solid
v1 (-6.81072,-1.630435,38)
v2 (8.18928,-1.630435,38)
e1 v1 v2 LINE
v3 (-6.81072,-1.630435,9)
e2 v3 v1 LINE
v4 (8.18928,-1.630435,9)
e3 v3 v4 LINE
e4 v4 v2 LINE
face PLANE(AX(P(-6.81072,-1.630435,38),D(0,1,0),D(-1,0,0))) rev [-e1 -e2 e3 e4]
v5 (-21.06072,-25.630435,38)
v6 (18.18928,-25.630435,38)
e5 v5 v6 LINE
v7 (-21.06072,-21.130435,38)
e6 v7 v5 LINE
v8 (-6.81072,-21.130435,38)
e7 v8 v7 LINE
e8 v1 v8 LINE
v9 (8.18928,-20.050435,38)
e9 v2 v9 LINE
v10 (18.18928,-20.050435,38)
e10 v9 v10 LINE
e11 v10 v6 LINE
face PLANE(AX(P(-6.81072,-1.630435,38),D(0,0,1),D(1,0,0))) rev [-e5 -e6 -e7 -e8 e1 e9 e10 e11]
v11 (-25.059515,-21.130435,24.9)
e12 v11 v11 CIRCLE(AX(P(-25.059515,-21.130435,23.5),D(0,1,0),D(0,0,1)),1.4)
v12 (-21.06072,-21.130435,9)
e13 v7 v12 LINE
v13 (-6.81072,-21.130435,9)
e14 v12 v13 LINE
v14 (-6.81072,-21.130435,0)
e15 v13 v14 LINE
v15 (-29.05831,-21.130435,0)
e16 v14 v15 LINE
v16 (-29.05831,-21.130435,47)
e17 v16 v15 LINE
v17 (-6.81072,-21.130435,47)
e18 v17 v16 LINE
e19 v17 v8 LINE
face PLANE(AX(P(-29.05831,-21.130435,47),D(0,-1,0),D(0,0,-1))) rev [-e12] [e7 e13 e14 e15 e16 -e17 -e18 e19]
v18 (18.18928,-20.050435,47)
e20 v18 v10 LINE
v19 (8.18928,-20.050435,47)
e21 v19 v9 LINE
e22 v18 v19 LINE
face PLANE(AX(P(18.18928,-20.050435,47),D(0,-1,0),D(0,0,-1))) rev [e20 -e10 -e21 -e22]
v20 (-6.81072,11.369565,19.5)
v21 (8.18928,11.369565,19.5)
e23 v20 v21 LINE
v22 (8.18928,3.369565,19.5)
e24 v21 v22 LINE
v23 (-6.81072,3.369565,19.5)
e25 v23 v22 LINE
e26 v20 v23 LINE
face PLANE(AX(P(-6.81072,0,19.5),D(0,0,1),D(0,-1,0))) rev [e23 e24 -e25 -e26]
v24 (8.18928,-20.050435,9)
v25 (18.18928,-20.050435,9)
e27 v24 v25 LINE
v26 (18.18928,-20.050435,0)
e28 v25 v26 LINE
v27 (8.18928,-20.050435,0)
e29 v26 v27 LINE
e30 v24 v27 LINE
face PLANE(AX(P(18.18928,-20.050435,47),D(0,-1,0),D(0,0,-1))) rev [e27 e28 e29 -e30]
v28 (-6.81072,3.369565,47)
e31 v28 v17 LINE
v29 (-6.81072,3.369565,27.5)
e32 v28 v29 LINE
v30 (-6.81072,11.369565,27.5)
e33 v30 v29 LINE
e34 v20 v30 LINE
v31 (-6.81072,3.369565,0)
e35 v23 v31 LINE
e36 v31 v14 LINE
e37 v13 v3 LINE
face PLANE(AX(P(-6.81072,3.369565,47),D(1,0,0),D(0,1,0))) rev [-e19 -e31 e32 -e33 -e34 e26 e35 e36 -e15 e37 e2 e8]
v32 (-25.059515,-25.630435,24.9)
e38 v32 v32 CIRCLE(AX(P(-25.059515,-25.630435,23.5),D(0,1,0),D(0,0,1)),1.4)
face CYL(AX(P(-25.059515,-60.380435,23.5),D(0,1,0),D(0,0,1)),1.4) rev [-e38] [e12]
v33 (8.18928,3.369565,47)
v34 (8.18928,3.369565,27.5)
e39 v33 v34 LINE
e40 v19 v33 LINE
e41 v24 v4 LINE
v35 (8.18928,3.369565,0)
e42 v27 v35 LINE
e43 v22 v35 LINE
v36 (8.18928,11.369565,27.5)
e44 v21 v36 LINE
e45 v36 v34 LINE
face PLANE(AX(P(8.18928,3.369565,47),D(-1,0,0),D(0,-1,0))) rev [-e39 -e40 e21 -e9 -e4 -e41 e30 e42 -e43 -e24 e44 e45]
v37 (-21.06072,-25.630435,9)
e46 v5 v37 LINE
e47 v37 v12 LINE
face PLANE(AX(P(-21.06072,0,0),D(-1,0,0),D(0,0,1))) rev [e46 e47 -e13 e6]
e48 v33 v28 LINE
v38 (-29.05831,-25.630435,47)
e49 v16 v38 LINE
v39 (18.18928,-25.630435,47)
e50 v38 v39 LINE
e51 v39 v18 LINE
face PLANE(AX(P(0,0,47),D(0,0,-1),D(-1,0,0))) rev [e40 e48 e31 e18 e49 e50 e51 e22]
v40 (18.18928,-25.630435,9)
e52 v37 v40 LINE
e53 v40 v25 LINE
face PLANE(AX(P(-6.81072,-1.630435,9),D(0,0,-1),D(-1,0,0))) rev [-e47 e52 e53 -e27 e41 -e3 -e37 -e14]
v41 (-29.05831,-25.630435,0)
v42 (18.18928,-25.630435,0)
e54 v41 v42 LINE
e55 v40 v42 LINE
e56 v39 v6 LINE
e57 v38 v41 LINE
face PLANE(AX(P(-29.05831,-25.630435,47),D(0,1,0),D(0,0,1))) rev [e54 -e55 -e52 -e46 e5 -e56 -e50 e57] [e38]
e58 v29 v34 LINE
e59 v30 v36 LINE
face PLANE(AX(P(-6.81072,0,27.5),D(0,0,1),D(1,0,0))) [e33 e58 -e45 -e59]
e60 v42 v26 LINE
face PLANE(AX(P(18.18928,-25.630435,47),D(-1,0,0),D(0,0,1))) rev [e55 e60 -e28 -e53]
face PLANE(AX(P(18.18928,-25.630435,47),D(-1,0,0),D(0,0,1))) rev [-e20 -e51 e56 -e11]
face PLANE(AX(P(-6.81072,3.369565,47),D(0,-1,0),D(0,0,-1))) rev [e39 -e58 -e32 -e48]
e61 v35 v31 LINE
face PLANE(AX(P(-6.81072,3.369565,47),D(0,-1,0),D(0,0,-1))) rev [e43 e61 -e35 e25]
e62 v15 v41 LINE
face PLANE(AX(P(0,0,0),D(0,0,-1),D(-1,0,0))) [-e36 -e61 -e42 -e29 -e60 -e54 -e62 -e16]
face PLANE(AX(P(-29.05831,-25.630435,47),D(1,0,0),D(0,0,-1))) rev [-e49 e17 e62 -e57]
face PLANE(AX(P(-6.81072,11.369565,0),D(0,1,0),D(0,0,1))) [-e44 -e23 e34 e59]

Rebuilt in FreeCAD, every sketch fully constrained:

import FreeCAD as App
import Part
import Sketcher

V = App.Vector
Q = App.Units.Quantity

doc = App.newDocument("Part")
body = doc.addObject("PartDesign::Body", "Body")

# Sketch on XY plane
sketch1 = body.newObject("Sketcher::SketchObject", "Sketch")
sketch1.AttachmentSupport = (doc.getObject("XY_Plane"), [""])
sketch1.MapMode = "FlatFace"
sketch1.addGeometry([
    Part.LineSegment(V(-6.8, 3.4, 0), V(-6.8, -21.1, 0)),  # 0
    Part.LineSegment(V(-6.8, -21.1, 0), V(-29.1, -21.1, 0)),  # 1
    Part.LineSegment(V(-29.1, -21.1, 0), V(-29.1, -25.6, 0)),  # 2
    Part.LineSegment(V(-29.1, -25.6, 0), V(18.2, -25.6, 0)),  # 3
    Part.LineSegment(V(18.2, -25.6, 0), V(18.2, -20.1, 0)),  # 4
    Part.LineSegment(V(18.2, -20.1, 0), V(8.2, -20.1, 0)),  # 5
    Part.LineSegment(V(8.2, -20.1, 0), V(8.2, 3.4, 0)),  # 6
    Part.LineSegment(V(8.2, 3.4, 0), V(-6.8, 3.4, 0)),  # 7
], False)
sketch1.addConstraint([
    Sketcher.Constraint("Coincident", 0, 2, 1, 1),
    Sketcher.Constraint("Coincident", 1, 2, 2, 1),
    Sketcher.Constraint("Coincident", 2, 2, 3, 1),
    Sketcher.Constraint("Coincident", 3, 2, 4, 1),
    Sketcher.Constraint("Coincident", 4, 2, 5, 1),
    Sketcher.Constraint("Coincident", 5, 2, 6, 1),
    Sketcher.Constraint("Coincident", 6, 2, 7, 1),
    Sketcher.Constraint("Coincident", 7, 2, 0, 1),
    Sketcher.Constraint("Vertical", 0),
    Sketcher.Constraint("Horizontal", 1),
    Sketcher.Constraint("Vertical", 2),
    Sketcher.Constraint("Horizontal", 3),
    Sketcher.Constraint("Vertical", 4),
    Sketcher.Constraint("Horizontal", 5),
    Sketcher.Constraint("Vertical", 6),
    Sketcher.Constraint("Horizontal", 7),
    Sketcher.Constraint("DistanceX", 5, 2, 5, 1, Q("10 mm")),
    Sketcher.Constraint("DistanceX", 7, 2, 7, 1, Q("15 mm")),
    Sketcher.Constraint("DistanceY", 0, 2, 0, 1, Q("24.5 mm")),
    Sketcher.Constraint("DistanceY", 2, 2, 2, 1, Q("4.5 mm")),
    Sketcher.Constraint("DistanceY", 4, 1, 4, 2, Q("5.58 mm")),
    Sketcher.Constraint("DistanceX", 1, 2, 1, 1, Q("22.24759 mm")),
    Sketcher.Constraint("DistanceX", 0, 2, -1, 1, Q("6.81072 mm")),
    Sketcher.Constraint("DistanceY", 0, 2, -1, 1, Q("21.130435 mm")),
])
pad1 = body.newObject("PartDesign::Pad", "Pad")
pad1.Profile = sketch1
pad1.Length = 47

# Sketch on YZ plane
sketch2 = body.newObject("Sketcher::SketchObject", "Sketch001")
sketch2.AttachmentSupport = (doc.getObject("YZ_Plane"), [""])
sketch2.MapMode = "FlatFace"
sketch2.AttachmentOffset = App.Placement(V(0, 0, 8.18928), App.Rotation())
sketch2.addGeometry([
    Part.LineSegment(V(11, 28, 0), V(3, 28, 0)),
    Part.LineSegment(V(3, 28, 0), V(3, 20, 0)),
    Part.LineSegment(V(3, 20, 0), V(11, 20, 0)),
    Part.LineSegment(V(11, 20, 0), V(11, 28, 0)),
], False)
sketch2.addConstraint([
    Sketcher.Constraint("Coincident", 0, 2, 1, 1),
    Sketcher.Constraint("Coincident", 1, 2, 2, 1),
    Sketcher.Constraint("Coincident", 2, 2, 3, 1),
    Sketcher.Constraint("Coincident", 3, 2, 0, 1),
    Sketcher.Constraint("Horizontal", 0),
    Sketcher.Constraint("Vertical", 1),
    Sketcher.Constraint("Horizontal", 2),
    Sketcher.Constraint("Vertical", 3),
    Sketcher.Constraint("Equal", 2, 1),
    Sketcher.Constraint("DistanceX", 0, 2, 0, 1, Q("8 mm")),
    Sketcher.Constraint("DistanceY", -1, 1, 0, 2, Q("27.5 mm")),
    Sketcher.Constraint("DistanceX", -1, 1, 0, 2, Q("3.369565 mm")),
])
pad2 = body.newObject("PartDesign::Pad", "Pad001")
pad2.Profile = sketch2
pad2.Length = 15
pad2.Reversed = True

# Sketch on YZ plane
sketch3 = body.newObject("Sketcher::SketchObject", "Sketch002")
sketch3.AttachmentSupport = (doc.getObject("YZ_Plane"), [""])
sketch3.MapMode = "FlatFace"
sketch3.AttachmentOffset = App.Placement(V(0, 0, 8.18928), App.Rotation())
sketch3.addGeometry([
    Part.LineSegment(V(-2, 38, 0), V(-20, 38, 0)),
    Part.LineSegment(V(-20, 38, 0), V(-20, 9, 0)),
    Part.LineSegment(V(-20, 9, 0), V(-2, 9, 0)),
    Part.LineSegment(V(-2, 9, 0), V(-2, 38, 0)),
], False)
sketch3.addConstraint([
    Sketcher.Constraint("Coincident", 0, 2, 1, 1),
    Sketcher.Constraint("Coincident", 1, 2, 2, 1),
    Sketcher.Constraint("Coincident", 2, 2, 3, 1),
    Sketcher.Constraint("Coincident", 3, 2, 0, 1),
    Sketcher.Constraint("Horizontal", 0),
    Sketcher.Constraint("Vertical", 1),
    Sketcher.Constraint("Horizontal", 2),
    Sketcher.Constraint("Vertical", 3),
    Sketcher.Constraint("DistanceY", 1, 2, 1, 1, Q("29 mm")),
    Sketcher.Constraint("DistanceY", -1, 1, 0, 2, Q("38 mm")),
    Sketcher.Constraint("DistanceX", 0, 2, 0, 1, Q("18.42 mm")),
    Sketcher.Constraint("DistanceX", 0, 2, -1, 1, Q("20.050435 mm")),
])
pocket1 = body.newObject("PartDesign::Pocket", "Pocket")
pocket1.Profile = sketch3
pocket1.Length = 15

# Sketch on YZ plane
sketch4 = body.newObject("Sketcher::SketchObject", "Sketch003")
sketch4.AttachmentSupport = (doc.getObject("YZ_Plane"), [""])
sketch4.MapMode = "FlatFace"
sketch4.AttachmentOffset = App.Placement(V(0, 0, 18.18928), App.Rotation())
sketch4.addGeometry([
    Part.LineSegment(V(-20, 38, 0), V(-26, 38, 0)),
    Part.LineSegment(V(-26, 38, 0), V(-26, 9, 0)),
    Part.LineSegment(V(-26, 9, 0), V(-20, 9, 0)),
    Part.LineSegment(V(-20, 9, 0), V(-20, 38, 0)),
], False)
sketch4.addConstraint([
    Sketcher.Constraint("Coincident", 0, 2, 1, 1),
    Sketcher.Constraint("Coincident", 1, 2, 2, 1),
    Sketcher.Constraint("Coincident", 2, 2, 3, 1),
    Sketcher.Constraint("Coincident", 3, 2, 0, 1),
    Sketcher.Constraint("Horizontal", 0),
    Sketcher.Constraint("Vertical", 1),
    Sketcher.Constraint("Horizontal", 2),
    Sketcher.Constraint("Vertical", 3),
    Sketcher.Constraint("DistanceY", 1, 2, 1, 1, Q("29 mm")),
    Sketcher.Constraint("DistanceY", -1, 1, 0, 2, Q("38 mm")),
    Sketcher.Constraint("DistanceX", 0, 2, 0, 1, Q("5.58 mm")),
    Sketcher.Constraint("DistanceX", 0, 2, -1, 1, Q("25.630435 mm")),
])
pocket2 = body.newObject("PartDesign::Pocket", "Pocket001")
pocket2.Profile = sketch4
pocket2.Length = 39.25

# Sketch on XZ plane
sketch5 = body.newObject("Sketcher::SketchObject", "Sketch004")
sketch5.AttachmentSupport = (doc.getObject("XZ_Plane"), [""])
sketch5.MapMode = "FlatFace"
sketch5.AttachmentOffset = App.Placement(V(0, 0, 21.130435), App.Rotation())
sketch5.addGeometry(Part.Circle(V(-25.1, 23.5, 0), V(0, 0, 1), 1.4), False)
sketch5.addConstraint([
    Sketcher.Constraint("Diameter", 0, Q("2.8 mm")),
    Sketcher.Constraint("DistanceY", -1, 1, 0, 3, Q("23.5 mm")),
    Sketcher.Constraint("DistanceX", 0, 3, -1, 1, Q("25.059515 mm")),
])
pocket3 = body.newObject("PartDesign::Pocket", "Pocket002")
pocket3.Profile = sketch5
pocket3.Length = 39.25
pocket3.Reversed = True

doc.recompute()
